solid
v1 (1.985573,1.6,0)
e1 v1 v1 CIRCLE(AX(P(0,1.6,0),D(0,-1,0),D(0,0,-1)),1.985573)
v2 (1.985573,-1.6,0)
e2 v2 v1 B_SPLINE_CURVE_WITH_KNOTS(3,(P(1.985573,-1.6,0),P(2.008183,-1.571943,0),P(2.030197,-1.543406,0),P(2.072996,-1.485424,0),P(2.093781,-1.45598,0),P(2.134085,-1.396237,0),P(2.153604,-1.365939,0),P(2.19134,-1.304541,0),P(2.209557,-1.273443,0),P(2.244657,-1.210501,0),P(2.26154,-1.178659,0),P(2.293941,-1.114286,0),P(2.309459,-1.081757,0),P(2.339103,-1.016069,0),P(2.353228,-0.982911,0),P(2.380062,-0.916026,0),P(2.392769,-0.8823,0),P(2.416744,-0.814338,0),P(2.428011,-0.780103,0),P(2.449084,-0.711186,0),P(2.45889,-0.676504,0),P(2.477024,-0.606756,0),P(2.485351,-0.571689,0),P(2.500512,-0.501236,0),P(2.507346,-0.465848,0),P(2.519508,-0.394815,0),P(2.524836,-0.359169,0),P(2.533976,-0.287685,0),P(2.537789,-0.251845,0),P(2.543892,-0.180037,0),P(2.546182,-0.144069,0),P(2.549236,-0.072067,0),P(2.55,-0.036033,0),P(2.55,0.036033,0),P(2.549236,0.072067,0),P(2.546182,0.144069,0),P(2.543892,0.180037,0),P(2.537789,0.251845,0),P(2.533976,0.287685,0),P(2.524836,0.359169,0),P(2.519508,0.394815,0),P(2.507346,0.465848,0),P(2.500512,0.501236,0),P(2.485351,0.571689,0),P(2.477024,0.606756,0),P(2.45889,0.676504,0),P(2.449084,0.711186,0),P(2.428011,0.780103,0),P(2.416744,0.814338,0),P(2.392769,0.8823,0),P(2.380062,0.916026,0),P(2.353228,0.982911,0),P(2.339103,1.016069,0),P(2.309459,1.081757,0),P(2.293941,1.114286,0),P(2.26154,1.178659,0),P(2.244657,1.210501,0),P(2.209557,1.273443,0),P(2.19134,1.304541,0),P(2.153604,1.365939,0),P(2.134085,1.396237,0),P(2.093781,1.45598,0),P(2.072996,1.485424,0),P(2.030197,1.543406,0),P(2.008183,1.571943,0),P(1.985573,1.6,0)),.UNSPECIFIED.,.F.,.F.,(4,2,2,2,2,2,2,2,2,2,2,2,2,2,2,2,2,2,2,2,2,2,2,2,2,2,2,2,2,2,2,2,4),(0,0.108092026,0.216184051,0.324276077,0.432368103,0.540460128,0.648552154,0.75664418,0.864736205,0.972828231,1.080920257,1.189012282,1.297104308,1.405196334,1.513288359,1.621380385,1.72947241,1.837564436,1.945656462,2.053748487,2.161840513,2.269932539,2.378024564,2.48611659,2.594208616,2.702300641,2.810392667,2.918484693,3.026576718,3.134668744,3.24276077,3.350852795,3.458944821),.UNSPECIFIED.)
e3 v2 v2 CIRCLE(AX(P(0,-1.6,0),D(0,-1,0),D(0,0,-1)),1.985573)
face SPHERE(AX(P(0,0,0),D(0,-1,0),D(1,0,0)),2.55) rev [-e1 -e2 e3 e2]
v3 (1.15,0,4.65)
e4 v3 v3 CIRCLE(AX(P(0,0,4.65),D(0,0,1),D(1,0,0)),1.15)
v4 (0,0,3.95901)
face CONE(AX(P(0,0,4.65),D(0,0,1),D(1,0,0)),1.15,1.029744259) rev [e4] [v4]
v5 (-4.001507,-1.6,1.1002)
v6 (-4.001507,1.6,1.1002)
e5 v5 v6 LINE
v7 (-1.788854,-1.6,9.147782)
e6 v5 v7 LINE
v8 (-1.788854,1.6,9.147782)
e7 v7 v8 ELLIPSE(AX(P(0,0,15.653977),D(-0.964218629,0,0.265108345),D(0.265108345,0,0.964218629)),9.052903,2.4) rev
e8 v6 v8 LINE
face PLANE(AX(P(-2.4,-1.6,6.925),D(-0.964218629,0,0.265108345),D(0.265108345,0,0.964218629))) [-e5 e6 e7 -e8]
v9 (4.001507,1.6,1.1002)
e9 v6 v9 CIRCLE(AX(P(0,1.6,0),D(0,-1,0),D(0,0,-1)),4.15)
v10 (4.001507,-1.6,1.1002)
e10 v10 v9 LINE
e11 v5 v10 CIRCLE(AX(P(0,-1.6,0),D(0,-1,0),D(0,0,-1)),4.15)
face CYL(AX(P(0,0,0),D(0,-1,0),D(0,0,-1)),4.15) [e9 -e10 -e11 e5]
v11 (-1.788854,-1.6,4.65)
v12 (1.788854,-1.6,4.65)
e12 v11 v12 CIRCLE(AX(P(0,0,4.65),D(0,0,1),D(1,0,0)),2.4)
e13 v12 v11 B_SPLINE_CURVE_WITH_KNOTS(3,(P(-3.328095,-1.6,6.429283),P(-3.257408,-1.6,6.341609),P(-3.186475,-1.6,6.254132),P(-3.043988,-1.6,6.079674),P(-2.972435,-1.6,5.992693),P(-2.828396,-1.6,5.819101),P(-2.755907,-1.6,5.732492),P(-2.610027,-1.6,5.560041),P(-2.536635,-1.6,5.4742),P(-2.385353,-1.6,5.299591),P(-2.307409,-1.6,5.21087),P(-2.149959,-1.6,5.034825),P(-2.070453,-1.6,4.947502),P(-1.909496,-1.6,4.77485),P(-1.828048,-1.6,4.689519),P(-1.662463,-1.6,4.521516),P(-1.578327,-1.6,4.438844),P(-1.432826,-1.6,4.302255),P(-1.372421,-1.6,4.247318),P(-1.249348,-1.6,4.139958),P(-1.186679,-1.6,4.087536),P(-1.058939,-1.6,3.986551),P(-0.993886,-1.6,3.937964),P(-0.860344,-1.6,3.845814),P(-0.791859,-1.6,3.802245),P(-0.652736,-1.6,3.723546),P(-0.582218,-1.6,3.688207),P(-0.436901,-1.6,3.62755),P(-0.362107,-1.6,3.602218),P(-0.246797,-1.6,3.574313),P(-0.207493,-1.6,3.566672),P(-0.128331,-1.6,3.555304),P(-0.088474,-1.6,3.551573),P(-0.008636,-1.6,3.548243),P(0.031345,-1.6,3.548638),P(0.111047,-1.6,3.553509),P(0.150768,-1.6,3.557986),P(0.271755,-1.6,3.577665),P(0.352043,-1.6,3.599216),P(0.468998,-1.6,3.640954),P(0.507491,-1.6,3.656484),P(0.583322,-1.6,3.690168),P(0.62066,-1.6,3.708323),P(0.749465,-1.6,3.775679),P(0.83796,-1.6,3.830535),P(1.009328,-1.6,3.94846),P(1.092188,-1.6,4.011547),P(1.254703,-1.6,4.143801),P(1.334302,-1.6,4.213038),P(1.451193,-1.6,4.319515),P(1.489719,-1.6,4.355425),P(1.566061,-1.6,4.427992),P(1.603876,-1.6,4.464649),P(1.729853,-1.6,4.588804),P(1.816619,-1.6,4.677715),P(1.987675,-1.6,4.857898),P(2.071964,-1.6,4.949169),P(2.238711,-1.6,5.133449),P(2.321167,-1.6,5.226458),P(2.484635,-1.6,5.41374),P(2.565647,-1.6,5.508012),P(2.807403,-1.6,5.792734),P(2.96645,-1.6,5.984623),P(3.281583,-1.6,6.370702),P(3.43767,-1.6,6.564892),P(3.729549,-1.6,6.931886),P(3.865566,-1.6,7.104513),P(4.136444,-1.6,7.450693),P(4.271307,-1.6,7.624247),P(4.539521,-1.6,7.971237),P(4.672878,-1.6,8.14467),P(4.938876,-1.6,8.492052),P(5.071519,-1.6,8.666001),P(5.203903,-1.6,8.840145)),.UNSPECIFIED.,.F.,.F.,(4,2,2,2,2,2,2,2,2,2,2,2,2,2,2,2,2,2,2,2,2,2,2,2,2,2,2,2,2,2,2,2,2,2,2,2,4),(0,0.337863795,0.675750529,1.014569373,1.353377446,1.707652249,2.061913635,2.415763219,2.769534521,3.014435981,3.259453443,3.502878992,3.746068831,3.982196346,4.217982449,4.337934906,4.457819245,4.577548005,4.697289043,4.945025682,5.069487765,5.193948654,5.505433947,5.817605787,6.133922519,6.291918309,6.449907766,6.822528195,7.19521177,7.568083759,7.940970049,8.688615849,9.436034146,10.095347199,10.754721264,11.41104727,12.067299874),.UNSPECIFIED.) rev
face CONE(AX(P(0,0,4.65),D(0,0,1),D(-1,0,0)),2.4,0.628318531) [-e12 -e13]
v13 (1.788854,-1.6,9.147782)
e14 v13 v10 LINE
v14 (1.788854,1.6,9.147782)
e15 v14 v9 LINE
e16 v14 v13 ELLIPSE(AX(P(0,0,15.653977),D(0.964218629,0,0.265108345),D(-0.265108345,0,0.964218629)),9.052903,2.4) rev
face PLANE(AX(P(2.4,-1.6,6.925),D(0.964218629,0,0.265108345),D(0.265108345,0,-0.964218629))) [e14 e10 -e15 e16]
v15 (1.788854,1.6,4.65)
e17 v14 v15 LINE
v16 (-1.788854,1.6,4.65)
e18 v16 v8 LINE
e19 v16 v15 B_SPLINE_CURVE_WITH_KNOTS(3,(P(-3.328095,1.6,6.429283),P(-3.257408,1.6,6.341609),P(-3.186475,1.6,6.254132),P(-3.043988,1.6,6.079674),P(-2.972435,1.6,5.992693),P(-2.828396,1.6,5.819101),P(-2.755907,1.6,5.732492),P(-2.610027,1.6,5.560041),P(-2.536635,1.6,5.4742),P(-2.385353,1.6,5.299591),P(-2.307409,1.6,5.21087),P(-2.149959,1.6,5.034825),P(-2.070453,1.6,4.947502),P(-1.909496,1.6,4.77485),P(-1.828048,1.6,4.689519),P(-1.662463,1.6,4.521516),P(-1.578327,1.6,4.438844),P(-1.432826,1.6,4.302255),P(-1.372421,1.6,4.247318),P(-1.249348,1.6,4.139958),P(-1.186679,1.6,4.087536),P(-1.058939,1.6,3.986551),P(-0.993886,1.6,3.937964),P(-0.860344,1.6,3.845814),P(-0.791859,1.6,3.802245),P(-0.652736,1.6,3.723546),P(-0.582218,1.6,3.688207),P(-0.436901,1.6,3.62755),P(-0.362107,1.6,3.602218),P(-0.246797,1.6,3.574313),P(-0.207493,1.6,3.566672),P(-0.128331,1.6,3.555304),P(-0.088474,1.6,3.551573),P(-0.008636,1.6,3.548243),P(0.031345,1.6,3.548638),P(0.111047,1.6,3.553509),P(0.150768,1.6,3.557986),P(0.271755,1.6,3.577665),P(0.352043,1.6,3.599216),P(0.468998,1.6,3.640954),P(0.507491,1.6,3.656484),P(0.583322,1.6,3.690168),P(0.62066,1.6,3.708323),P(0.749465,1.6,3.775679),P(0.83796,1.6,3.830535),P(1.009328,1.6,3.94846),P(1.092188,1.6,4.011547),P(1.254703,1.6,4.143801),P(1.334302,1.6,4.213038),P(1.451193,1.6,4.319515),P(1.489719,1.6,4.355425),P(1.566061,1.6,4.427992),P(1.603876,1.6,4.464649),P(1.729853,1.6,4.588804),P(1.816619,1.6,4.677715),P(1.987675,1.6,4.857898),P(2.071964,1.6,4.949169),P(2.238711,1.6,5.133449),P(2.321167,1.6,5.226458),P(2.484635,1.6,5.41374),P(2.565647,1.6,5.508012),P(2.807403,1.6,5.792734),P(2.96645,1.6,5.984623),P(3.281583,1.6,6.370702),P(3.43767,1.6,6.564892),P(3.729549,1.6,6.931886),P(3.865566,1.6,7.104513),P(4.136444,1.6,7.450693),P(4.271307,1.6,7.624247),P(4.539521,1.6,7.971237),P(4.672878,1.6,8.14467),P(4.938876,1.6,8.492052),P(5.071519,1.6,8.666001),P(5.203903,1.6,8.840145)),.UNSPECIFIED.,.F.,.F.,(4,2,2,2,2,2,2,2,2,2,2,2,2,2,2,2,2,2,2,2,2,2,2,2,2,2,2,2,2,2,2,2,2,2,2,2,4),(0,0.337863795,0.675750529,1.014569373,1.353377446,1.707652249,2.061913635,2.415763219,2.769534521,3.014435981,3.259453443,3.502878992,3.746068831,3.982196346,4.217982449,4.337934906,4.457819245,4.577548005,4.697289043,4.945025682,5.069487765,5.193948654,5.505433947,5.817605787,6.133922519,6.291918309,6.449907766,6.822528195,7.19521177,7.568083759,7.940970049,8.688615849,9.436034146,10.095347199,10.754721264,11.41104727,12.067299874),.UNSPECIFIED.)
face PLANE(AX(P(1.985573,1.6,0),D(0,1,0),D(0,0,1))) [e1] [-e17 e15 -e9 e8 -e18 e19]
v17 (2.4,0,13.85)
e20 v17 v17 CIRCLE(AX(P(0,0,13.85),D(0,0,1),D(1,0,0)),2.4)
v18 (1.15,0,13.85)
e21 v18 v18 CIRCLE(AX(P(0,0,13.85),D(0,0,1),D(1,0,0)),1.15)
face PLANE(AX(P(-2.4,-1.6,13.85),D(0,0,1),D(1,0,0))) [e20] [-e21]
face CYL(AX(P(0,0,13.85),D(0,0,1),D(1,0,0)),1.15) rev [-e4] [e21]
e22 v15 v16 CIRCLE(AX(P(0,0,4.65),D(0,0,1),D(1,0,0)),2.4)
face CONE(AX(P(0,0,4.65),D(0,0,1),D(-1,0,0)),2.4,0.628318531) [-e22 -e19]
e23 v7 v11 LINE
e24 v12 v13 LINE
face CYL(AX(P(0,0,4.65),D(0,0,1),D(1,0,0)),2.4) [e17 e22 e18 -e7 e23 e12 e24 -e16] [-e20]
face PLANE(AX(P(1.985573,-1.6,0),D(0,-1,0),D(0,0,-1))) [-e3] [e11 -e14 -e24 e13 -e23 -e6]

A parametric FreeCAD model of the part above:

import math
import FreeCAD as App
import Part
import Sketcher
from FreeCAD import Vector
Q = App.Units.Quantity


def add_polygon(sketch, points):
    """Adds a closed chain of lines whose ends are joined by coincident constraints."""
    first, n = sketch.GeometryCount, len(points)
    for a, b in zip(points, points[1:] + points[:1]):
        sketch.addGeometry(Part.LineSegment(App.Vector(*a, 0), App.Vector(*b, 0)), False)
    for i in range(n):
        sketch.addConstraint(Sketcher.Constraint("Coincident", first + i, 2, first + (i + 1) % n, 1))

doc = App.newDocument("Part")
params = doc.addObject("Spreadsheet::Sheet", "Params")
for row, (alias, value) in enumerate([
    ("sketch1_radius", "2.55 mm"),
    ("sketch1_height", "3.2 mm"),
    ("revolution_angle", "360 deg"),
    ("sketch2_radius", "4.15 mm"),
    ("sketch2_width", "4.8 mm"),
    ("pad1_length", "3.2 mm"),
    ("sketch3_diameter", "4.8 mm"),
    ("pad2_length", "9.2 mm"),
    ("sketch4_diameter", "4.8 mm"),
    ("pad3_length", "1.2 mm"),
    ("pad3_taper", "-36 deg"),
    ("sketch5_radius", "2.4 mm"),
    ("sketch5_height", "1.6 mm"),
    ("pocket1_length", "6.925 mm"),
    ("sketch6_width", "2 mm"),
    ("sketch6_width2", "4.8 mm"),
    ("pad4_length", "3.2 mm"),
    ("sketch7_diameter", "2.3 mm"),
    ("hole_diameter", "2.3 mm"),
    ("hole_depth", "9.2 mm"),
], start=1):
    params.set(f"A{row}", alias)
    params.set(f"B{row}", "=" + value)
    params.setAlias(f"B{row}", alias)

body = doc.addObject("PartDesign::Body", "Body")

sketch1 = doc.addObject("Sketcher::SketchObject", "Sketch")
body.addObject(sketch1)
sketch1.AttachmentSupport = (doc.XY_Plane, [""])
sketch1.MapMode = "FlatFace"
sketch1.addGeometry([
    Part.LineSegment(Vector(4.15, 1.6, 0), Vector(1.985573, 1.6, 0)),
    Part.ArcOfCircle(Part.Circle(Vector(0, 0, 0), Vector(0, 0, 1), 2.55), math.radians(-38.86231), math.radians(38.86231)),
    Part.LineSegment(Vector(1.985573, -1.6, 0), Vector(4.15, -1.6, 0)),
    Part.LineSegment(Vector(4.15, -1.6, 0), Vector(4.15, 1.6, 0)),
], False)
sketch1.addConstraint([
    Sketcher.Constraint("Coincident", 0, 2, 1, 2),
    Sketcher.Constraint("Coincident", 1, 1, 2, 1),
    Sketcher.Constraint("Coincident", 2, 2, 3, 1),
    Sketcher.Constraint("Coincident", 3, 2, 0, 1),
    Sketcher.Constraint("Horizontal", 0),
    Sketcher.Constraint("Horizontal", 2),
    Sketcher.Constraint("Vertical", 3),
    Sketcher.Constraint("Coincident", 1, 3, -1, 1),
    Sketcher.Constraint("Vertical", 0, 2, 1, 1),
    Sketcher.Constraint("Radius", 1, Q("2.55 mm")),
    Sketcher.Constraint("DistanceY", 3, 1, 3, 2, Q("3.2 mm")),
    Sketcher.Constraint("DistanceX", -1, 1, 2, 2, Q("4.15 mm")),
])
sketch1.setExpression("Constraints[9]", "Params.sketch1_radius")
sketch1.setExpression("Constraints[10]", "Params.sketch1_height")
revolution = doc.addObject("PartDesign::Revolution", "Revolution")
body.addObject(revolution)
revolution.Profile = sketch1
revolution.ReferenceAxis = (sketch1, ["V_Axis"])
revolution.setExpression("Angle", "Params.revolution_angle")

sketch2 = doc.addObject("Sketcher::SketchObject", "Sketch001")
body.addObject(sketch2)
sketch2.AttachmentSupport = (doc.XZ_Plane, [""])
sketch2.MapMode = "FlatFace"
sketch2.AttachmentOffset = App.Placement(Vector(0, 0, 1.6), App.Rotation())
sketch2.addGeometry([
    Part.LineSegment(Vector(-4.001507, 1.1002, 0), Vector(-2.4, 6.925, 0)),
    Part.LineSegment(Vector(-2.4, 6.925, 0), Vector(-2.4, 13.85, 0)),
    Part.LineSegment(Vector(-2.4, 13.85, 0), Vector(2.4, 13.85, 0)),
    Part.LineSegment(Vector(2.4, 13.85, 0), Vector(2.4, 6.925, 0)),
    Part.LineSegment(Vector(2.4, 6.925, 0), Vector(4.001507, 1.1002, 0)),
    Part.ArcOfCircle(Part.Circle(Vector(0, 0, 0), Vector(0, 0, 1), 4.15), math.radians(15.373391), math.radians(164.626609)),
], False)
sketch2.addConstraint([
    Sketcher.Constraint("Coincident", 0, 2, 1, 1),
    Sketcher.Constraint("Coincident", 1, 2, 2, 1),
    Sketcher.Constraint("Coincident", 2, 2, 3, 1),
    Sketcher.Constraint("Coincident", 3, 2, 4, 1),
    Sketcher.Constraint("Tangent", 4, 2, 5, 1),
    Sketcher.Constraint("Tangent", 5, 2, 0, 1),
    Sketcher.Constraint("Vertical", 1),
    Sketcher.Constraint("Horizontal", 2),
    Sketcher.Constraint("Vertical", 3),
    Sketcher.Constraint("Coincident", 5, 3, -1, 1),
    Sketcher.Constraint("Symmetric", 0, 2, 3, 2, -2),
    Sketcher.Constraint("Radius", 5, Q("4.15 mm")),
    Sketcher.Constraint("DistanceX", 2, 1, 2, 2, Q("4.8 mm")),
    Sketcher.Constraint("DistanceY", 1, 1, 1, 2, Q("6.925 mm")),
    Sketcher.Constraint("DistanceY", -1, 1, 1, 2, Q("13.85 mm")),
])
sketch2.setExpression("Constraints[11]", "Params.sketch2_radius")
sketch2.setExpression("Constraints[12]", "Params.sketch2_width")
pad1 = doc.addObject("PartDesign::Pad", "Pad")
body.addObject(pad1)
pad1.Profile = sketch2
pad1.setExpression("Length", "Params.pad1_length")
pad1.Reversed = True

sketch3 = doc.addObject("Sketcher::SketchObject", "Sketch002")
body.addObject(sketch3)
sketch3.AttachmentSupport = (doc.XY_Plane, [""])
sketch3.MapMode = "FlatFace"
sketch3.AttachmentOffset = App.Placement(Vector(0, 0, 13.85), App.Rotation())
sketch3.addGeometry(Part.Circle(Vector(0, 0, 0), Vector(0, 0, 1), 2.4), False)
sketch3.addConstraint([
    Sketcher.Constraint("Coincident", 0, 3, -1, 1),
    Sketcher.Constraint("Diameter", 0, Q("4.8 mm")),
])
sketch3.setExpression("Constraints[1]", "Params.sketch3_diameter")
pad2 = doc.addObject("PartDesign::Pad", "Pad001")
body.addObject(pad2)
pad2.Profile = sketch3
pad2.setExpression("Length", "Params.pad2_length")
pad2.Reversed = True

sketch4 = doc.addObject("Sketcher::SketchObject", "Sketch003")
body.addObject(sketch4)
sketch4.AttachmentSupport = (doc.XY_Plane, [""])
sketch4.MapMode = "FlatFace"
sketch4.AttachmentOffset = App.Placement(Vector(0, 0, 4.65), App.Rotation())
sketch4.addGeometry(Part.Circle(Vector(0, 0, 0), Vector(0, 0, 1), 2.4), False)
sketch4.addConstraint([
    Sketcher.Constraint("Coincident", 0, 3, -1, 1),
    Sketcher.Constraint("Diameter", 0, Q("4.8 mm")),
])
sketch4.setExpression("Constraints[1]", "Params.sketch4_diameter")
pad3 = doc.addObject("PartDesign::Pad", "Pad002")
body.addObject(pad3)
pad3.Profile = sketch4
pad3.setExpression("Length", "Params.pad3_length")
pad3.Reversed = True
pad3.setExpression("TaperAngle", "Params.pad3_taper")

sketch5 = doc.addObject("Sketcher::SketchObject", "Sketch004")
body.addObject(sketch5)
sketch5.AttachmentSupport = (doc.XY_Plane, [""])
sketch5.MapMode = "FlatFace"
sketch5.AttachmentOffset = App.Placement(Vector(0, 0, 13.85), App.Rotation())
sketch5.addGeometry([
    Part.LineSegment(Vector(2.4, 1.6, 0), Vector(1.788854, 1.6, 0)),
    Part.ArcOfCircle(Part.Circle(Vector(0, 0, 0), Vector(0, 0, 1), 2.4), math.radians(0), math.radians(41.810315)),
    Part.LineSegment(Vector(2.4, 0, 0), Vector(2.4, 1.6, 0)),
    Part.LineSegment(Vector(2.4, -1.6, 0), Vector(2.4, 0, 0)),
    Part.ArcOfCircle(Part.Circle(Vector(0, 0, 0), Vector(0, 0, 1), 2.4), math.radians(-41.810315), math.radians(0)),
    Part.LineSegment(Vector(1.788854, -1.6, 0), Vector(2.4, -1.6, 0)),
    Part.LineSegment(Vector(-2.4, 1.6, 0), Vector(-2.4, 0, 0)),
    Part.ArcOfCircle(Part.Circle(Vector(0, 0, 0), Vector(0, 0, 1), 2.4), math.radians(138.189685), math.radians(180)),
    Part.LineSegment(Vector(-1.788854, 1.6, 0), Vector(-2.4, 1.6, 0)),
    Part.LineSegment(Vector(-2.4, 0, 0), Vector(-2.4, -1.6, 0)),
    Part.LineSegment(Vector(-2.4, -1.6, 0), Vector(-1.788854, -1.6, 0)),
    Part.ArcOfCircle(Part.Circle(Vector(0, 0, 0), Vector(0, 0, 1), 2.4), math.radians(180), math.radians(221.810315)),
], False)
sketch5.addConstraint([
    Sketcher.Constraint("Coincident", 0, 2, 1, 2),
    Sketcher.Constraint("Tangent", 1, 1, 2, 1),
    Sketcher.Constraint("Coincident", 2, 2, 0, 1),
    Sketcher.Constraint("Tangent", 3, 2, 4, 2),
    Sketcher.Constraint("Coincident", 4, 1, 5, 1),
    Sketcher.Constraint("Coincident", 5, 2, 3, 1),
    Sketcher.Constraint("Tangent", 6, 2, 7, 2),
    Sketcher.Constraint("Coincident", 7, 1, 8, 1),
    Sketcher.Constraint("Coincident", 8, 2, 6, 1),
    Sketcher.Constraint("Coincident", 9, 2, 10, 1),
    Sketcher.Constraint("Coincident", 10, 2, 11, 2),
    Sketcher.Constraint("Tangent", 11, 1, 9, 1),
    Sketcher.Constraint("Horizontal", 0),
    Sketcher.Constraint("Vertical", 2),
    Sketcher.Constraint("Vertical", 3),
    Sketcher.Constraint("Horizontal", 5),
    Sketcher.Constraint("Vertical", 6),
    Sketcher.Constraint("Horizontal", 8),
    Sketcher.Constraint("Vertical", 9),
    Sketcher.Constraint("Horizontal", 10),
    Sketcher.Constraint("Coincident", 1, 3, -1, 1),
    Sketcher.Constraint("Coincident", 4, 3, -1, 1),
    Sketcher.Constraint("Coincident", 7, 3, -1, 1),
    Sketcher.Constraint("Coincident", 11, 3, -1, 1),
    Sketcher.Constraint("Equal", 1, 4),
    Sketcher.Constraint("Equal", 4, 7),
    Sketcher.Constraint("Equal", 7, 11),
    Sketcher.Constraint("Horizontal", 2, 2, 7, 1),
    Sketcher.Constraint("Horizontal", 5, 2, 9, 2),
    Sketcher.Constraint("Vertical", 0, 2, 4, 1),
    Sketcher.Constraint("Radius", 1, Q("2.4 mm")),
    Sketcher.Constraint("DistanceY", 2, 1, 2, 2, Q("1.6 mm")),
])
sketch5.setExpression("Constraints[30]", "Params.sketch5_radius")
sketch5.setExpression("Constraints[31]", "Params.sketch5_height")
pocket1 = doc.addObject("PartDesign::Pocket", "Pocket")
body.addObject(pocket1)
pocket1.Profile = sketch5
pocket1.setExpression("Length", "Params.pocket1_length")

sketch6 = doc.addObject("Sketcher::SketchObject", "Sketch005")
body.addObject(sketch6)
sketch6.AttachmentSupport = (doc.XZ_Plane, [""])
sketch6.MapMode = "FlatFace"
sketch6.AttachmentOffset = App.Placement(Vector(0, 0, -1.6), App.Rotation())
add_polygon(sketch6, [(-2.4, 6.925), (-1, 12.016903), (1, 12.016903), (2.4, 6.925)])
sketch6.addConstraint([
    Sketcher.Constraint("Horizontal", 1),
    Sketcher.Constraint("Horizontal", 3),
    Sketcher.Constraint("Equal", 0, 2),
    Sketcher.Constraint("DistanceX", 1, 1, 1, 2, Q("2 mm")),
    Sketcher.Constraint("DistanceX", 3, 2, 3, 1, Q("4.8 mm")),
    Sketcher.Constraint("DistanceX", 0, 2, -1, 1, Q("1 mm")),
    Sketcher.Constraint("DistanceY", -1, 1, 2, 2, Q("6.925 mm")),
    Sketcher.Constraint("Distance", 0, Q("5.28086 mm")),
])
sketch6.setExpression("Constraints[7]", "Params.sketch6_width")
sketch6.setExpression("Constraints[8]", "Params.sketch6_width2")
pad4 = doc.addObject("PartDesign::Pad", "Pad003")
body.addObject(pad4)
pad4.Profile = sketch6
pad4.setExpression("Length", "Params.pad4_length")

sketch7 = doc.addObject("Sketcher::SketchObject", "Sketch006")
body.addObject(sketch7)
sketch7.AttachmentSupport = (doc.XY_Plane, [""])
sketch7.MapMode = "FlatFace"
sketch7.AttachmentOffset = App.Placement(Vector(0, 0, 13.85), App.Rotation())
sketch7.addGeometry(Part.Circle(Vector(0, 0, 0), Vector(0, 0, 1), 1.15), False)
sketch7.addConstraint([
    Sketcher.Constraint("Coincident", 0, 3, -1, 1),
    Sketcher.Constraint("Diameter", 0, Q("2.3 mm")),
])
sketch7.setExpression("Constraints[1]", "Params.sketch7_diameter")
doc.recompute()
hole = doc.addObject("PartDesign::Hole", "Hole")
body.addObject(hole)
hole.Profile = sketch7
hole.ThreadType = "None"
hole.setExpression("Diameter", "Params.hole_diameter")
hole.DepthType = "Dimension"
hole.setExpression("Depth", "Params.hole_depth")
hole.DrillPoint = "Angled"
hole.DrillPointAngle = 118

doc.recompute()
